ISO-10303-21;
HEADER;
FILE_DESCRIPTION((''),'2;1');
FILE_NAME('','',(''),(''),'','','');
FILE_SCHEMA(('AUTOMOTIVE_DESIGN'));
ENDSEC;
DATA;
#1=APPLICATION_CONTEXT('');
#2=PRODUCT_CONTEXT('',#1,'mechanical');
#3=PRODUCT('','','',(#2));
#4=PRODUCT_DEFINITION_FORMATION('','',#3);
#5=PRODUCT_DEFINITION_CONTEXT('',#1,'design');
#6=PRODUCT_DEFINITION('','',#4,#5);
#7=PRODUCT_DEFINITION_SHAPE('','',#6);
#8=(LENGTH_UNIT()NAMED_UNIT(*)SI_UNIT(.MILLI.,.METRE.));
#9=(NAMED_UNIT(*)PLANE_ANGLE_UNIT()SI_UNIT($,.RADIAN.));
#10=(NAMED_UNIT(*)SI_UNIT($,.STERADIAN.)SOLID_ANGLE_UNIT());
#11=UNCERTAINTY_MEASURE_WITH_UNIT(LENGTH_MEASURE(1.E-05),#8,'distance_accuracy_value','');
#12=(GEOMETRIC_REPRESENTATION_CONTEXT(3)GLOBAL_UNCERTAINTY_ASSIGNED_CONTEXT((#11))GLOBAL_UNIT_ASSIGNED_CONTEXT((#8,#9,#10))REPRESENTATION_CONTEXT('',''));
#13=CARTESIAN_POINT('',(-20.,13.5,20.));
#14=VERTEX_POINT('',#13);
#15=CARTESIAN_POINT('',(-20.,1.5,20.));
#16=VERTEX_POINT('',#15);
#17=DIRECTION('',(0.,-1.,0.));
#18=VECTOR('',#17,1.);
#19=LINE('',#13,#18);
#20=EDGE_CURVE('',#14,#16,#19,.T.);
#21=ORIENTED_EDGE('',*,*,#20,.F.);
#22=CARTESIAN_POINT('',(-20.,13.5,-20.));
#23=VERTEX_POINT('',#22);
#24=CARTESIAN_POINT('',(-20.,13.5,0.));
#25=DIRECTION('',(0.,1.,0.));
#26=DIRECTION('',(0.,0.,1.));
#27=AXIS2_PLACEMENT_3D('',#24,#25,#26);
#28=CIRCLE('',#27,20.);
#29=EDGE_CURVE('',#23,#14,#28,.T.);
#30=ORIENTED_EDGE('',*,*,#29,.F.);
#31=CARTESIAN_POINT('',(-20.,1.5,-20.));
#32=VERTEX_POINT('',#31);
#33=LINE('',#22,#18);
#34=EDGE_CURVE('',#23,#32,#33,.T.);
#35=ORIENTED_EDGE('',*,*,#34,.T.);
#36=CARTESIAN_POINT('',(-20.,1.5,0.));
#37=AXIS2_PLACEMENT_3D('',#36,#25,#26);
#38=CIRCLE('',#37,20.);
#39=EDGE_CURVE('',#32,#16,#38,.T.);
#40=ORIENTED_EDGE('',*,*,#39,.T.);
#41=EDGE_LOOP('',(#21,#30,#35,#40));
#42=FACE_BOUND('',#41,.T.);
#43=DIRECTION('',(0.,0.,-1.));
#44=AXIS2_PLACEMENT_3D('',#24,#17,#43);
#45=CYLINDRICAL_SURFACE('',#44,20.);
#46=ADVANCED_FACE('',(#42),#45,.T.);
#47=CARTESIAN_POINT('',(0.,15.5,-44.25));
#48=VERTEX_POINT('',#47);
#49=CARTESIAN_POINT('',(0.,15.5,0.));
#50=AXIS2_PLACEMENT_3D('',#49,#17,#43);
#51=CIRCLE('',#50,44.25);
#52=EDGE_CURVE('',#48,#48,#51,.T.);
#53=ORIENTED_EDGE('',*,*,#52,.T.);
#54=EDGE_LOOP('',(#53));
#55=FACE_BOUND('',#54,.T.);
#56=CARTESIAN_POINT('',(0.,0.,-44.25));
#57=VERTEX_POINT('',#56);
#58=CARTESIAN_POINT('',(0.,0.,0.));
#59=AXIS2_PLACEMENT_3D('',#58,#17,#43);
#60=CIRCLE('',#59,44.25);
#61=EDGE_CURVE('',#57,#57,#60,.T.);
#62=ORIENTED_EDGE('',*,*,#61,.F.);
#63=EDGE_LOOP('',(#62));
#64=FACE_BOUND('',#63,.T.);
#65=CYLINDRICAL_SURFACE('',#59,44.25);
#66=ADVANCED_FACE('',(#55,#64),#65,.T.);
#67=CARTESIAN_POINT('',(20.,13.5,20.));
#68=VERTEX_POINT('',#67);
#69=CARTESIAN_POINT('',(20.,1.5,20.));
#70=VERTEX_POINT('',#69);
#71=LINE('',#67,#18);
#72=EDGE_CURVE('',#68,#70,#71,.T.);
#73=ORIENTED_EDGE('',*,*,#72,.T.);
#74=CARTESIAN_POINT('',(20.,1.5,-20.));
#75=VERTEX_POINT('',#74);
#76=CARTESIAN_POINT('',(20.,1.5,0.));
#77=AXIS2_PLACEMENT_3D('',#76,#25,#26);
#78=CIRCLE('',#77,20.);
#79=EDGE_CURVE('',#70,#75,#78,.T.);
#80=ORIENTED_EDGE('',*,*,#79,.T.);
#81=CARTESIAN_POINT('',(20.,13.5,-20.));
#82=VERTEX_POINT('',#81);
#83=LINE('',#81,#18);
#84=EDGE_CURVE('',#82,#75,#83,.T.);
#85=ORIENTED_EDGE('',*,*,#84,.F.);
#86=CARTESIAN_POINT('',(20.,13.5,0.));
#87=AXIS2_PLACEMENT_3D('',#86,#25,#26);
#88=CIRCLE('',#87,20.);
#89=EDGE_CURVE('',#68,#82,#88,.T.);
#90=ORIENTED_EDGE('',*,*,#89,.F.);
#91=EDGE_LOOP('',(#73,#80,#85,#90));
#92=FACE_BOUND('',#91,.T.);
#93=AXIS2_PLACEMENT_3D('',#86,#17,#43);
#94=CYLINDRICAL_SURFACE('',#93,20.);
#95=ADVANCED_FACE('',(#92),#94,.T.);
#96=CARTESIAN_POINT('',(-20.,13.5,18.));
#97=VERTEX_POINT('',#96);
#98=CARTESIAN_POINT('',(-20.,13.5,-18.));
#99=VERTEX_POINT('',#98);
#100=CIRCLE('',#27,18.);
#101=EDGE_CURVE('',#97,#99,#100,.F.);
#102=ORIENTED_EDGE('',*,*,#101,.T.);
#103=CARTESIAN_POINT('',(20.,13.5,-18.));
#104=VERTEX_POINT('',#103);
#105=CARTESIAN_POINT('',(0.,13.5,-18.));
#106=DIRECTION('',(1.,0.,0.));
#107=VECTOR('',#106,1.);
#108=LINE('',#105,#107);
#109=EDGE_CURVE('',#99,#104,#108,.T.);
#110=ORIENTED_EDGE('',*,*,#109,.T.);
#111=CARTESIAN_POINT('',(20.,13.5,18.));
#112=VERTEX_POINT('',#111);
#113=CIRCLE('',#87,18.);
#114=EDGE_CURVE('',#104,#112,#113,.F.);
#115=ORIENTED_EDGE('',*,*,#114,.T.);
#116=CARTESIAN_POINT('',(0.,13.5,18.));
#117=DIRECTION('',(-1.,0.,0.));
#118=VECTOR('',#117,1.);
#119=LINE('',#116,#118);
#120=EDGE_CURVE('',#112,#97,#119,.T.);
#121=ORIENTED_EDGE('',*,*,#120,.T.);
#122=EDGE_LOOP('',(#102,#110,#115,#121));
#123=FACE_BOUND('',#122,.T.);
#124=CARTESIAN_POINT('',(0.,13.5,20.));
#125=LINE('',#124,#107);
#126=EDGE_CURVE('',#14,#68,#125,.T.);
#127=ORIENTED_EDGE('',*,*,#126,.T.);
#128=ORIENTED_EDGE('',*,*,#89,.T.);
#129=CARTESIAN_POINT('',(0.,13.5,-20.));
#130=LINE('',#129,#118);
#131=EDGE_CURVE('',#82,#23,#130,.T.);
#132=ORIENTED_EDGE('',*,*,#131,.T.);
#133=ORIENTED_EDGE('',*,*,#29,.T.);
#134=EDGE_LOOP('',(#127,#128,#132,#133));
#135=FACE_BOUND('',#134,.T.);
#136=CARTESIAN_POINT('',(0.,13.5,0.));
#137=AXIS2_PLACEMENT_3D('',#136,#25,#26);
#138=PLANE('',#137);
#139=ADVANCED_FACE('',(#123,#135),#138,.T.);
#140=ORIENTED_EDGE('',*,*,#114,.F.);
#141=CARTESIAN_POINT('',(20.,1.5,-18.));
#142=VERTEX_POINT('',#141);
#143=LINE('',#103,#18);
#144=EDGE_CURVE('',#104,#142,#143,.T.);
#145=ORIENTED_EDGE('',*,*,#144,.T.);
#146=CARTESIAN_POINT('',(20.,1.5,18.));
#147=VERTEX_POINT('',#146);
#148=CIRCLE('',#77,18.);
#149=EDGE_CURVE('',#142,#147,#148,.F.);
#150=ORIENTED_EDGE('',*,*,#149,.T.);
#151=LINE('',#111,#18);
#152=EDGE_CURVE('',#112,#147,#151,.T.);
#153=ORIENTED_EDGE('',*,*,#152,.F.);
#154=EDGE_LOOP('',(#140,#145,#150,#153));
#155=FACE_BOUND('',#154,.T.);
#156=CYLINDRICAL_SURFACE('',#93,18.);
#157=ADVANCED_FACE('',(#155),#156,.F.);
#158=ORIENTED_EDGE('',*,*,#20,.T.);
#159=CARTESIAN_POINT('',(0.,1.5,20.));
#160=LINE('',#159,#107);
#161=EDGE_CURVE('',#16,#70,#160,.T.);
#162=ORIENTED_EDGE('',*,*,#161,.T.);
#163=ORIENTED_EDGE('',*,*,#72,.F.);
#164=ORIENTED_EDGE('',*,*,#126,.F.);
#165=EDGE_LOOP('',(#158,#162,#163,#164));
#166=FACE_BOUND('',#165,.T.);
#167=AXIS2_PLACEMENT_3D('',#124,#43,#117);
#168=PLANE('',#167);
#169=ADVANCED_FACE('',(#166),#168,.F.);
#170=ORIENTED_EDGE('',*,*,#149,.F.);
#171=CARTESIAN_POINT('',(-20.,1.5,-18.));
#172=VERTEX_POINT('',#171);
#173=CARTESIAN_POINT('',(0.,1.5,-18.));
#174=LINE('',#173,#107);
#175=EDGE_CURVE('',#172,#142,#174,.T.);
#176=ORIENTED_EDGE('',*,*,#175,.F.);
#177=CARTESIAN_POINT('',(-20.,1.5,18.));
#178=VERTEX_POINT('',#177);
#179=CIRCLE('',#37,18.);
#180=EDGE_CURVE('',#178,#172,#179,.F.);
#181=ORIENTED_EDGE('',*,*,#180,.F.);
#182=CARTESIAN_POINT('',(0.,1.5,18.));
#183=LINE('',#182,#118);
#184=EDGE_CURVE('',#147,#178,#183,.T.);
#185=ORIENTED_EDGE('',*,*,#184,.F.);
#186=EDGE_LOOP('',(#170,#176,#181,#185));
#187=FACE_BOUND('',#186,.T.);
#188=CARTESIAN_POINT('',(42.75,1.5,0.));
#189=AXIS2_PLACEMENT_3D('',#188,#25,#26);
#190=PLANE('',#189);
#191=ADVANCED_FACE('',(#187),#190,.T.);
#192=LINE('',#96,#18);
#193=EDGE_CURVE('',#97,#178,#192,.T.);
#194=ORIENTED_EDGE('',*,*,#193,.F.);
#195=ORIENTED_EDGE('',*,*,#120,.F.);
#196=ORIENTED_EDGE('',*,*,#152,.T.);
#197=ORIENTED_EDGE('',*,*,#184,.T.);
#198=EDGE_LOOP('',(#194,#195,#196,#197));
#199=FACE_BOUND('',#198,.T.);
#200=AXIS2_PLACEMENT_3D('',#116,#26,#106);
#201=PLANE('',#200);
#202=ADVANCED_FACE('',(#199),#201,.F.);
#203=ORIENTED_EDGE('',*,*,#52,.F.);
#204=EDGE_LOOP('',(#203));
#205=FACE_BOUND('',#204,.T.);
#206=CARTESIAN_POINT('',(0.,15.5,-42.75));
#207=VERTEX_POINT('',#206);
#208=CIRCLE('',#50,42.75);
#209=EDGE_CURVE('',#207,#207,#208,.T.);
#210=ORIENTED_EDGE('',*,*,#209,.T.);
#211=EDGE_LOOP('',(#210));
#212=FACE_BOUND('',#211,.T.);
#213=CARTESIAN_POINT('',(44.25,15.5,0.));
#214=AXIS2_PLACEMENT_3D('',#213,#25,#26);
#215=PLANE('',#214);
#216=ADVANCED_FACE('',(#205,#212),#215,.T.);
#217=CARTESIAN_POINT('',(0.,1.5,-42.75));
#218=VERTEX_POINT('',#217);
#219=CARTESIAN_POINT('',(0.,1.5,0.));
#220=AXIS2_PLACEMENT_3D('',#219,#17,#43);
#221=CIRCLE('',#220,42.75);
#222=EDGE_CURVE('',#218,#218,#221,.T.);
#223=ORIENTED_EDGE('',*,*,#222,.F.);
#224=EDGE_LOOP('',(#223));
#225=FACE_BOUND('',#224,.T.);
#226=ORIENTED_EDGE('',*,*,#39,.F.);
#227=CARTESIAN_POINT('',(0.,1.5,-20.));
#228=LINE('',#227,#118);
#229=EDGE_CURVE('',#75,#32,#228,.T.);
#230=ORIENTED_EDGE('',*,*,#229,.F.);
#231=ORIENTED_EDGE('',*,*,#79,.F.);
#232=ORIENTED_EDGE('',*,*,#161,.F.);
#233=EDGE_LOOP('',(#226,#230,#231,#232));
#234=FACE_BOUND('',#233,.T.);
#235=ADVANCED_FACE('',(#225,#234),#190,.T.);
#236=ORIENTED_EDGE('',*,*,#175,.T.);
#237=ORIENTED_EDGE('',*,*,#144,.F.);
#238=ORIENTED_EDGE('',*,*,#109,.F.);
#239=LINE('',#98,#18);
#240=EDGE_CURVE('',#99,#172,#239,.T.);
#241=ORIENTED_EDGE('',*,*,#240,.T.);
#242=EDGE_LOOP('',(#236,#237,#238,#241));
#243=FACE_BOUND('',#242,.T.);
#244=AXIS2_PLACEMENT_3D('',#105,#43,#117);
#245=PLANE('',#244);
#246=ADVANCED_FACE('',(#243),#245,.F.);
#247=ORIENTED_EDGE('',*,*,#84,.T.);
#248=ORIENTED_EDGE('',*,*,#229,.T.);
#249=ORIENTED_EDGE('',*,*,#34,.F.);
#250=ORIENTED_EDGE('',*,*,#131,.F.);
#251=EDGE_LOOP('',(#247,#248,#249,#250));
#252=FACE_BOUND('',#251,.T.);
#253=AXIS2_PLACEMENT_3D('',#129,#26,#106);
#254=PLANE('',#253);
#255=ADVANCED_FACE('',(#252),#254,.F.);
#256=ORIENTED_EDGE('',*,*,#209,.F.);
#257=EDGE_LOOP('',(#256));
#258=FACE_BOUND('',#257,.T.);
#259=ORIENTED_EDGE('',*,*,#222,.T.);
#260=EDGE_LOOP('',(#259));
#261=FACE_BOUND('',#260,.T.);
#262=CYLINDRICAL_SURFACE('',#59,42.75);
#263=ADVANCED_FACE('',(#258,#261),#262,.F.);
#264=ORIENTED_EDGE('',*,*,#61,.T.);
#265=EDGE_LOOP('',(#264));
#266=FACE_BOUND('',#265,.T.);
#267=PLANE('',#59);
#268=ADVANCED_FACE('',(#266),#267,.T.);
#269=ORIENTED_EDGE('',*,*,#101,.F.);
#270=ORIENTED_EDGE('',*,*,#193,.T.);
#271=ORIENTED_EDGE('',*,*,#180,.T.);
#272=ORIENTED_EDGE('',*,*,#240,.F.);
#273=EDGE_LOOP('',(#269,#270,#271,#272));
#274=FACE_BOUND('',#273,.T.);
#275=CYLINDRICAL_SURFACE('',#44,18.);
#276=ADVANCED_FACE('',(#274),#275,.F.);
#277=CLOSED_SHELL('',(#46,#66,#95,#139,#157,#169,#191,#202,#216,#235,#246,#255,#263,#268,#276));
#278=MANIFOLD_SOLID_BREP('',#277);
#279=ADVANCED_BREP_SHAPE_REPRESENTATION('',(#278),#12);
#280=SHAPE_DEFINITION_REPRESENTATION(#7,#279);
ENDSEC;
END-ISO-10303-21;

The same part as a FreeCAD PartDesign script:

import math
import FreeCAD as App
import Part
import Sketcher
from FreeCAD import Vector
Q = App.Units.Quantity

doc = App.newDocument("Part")
body = doc.addObject("PartDesign::Body", "Body")

sketch1 = body.newObject("Sketcher::SketchObject", "Sketch")
sketch1.AttachmentSupport = (doc.getObject("XY_Plane"), [""])
sketch1.MapMode = "FlatFace"
sketch1.addGeometry(Part.LineSegment(Vector(0, 0, 0), Vector(44.25, 0, 0)), False)
sketch1.addGeometry(Part.LineSegment(Vector(44.25, 0, 0), Vector(44.25, 15.5, 0)), False)
sketch1.addGeometry(Part.LineSegment(Vector(44.25, 15.5, 0), Vector(42.75, 15.5, 0)), False)
sketch1.addGeometry(Part.LineSegment(Vector(42.75, 15.5, 0), Vector(42.75, 1.5, 0)), False)
sketch1.addGeometry(Part.LineSegment(Vector(42.75, 1.5, 0), Vector(0, 1.5, 0)), False)
sketch1.addGeometry(Part.LineSegment(Vector(0, 1.5, 0), Vector(0, 0, 0)), False)
sketch1.addConstraint(Sketcher.Constraint("Coincident", 0, 2, 1, 1))
sketch1.addConstraint(Sketcher.Constraint("Coincident", 1, 2, 2, 1))
sketch1.addConstraint(Sketcher.Constraint("Coincident", 2, 2, 3, 1))
sketch1.addConstraint(Sketcher.Constraint("Coincident", 3, 2, 4, 1))
sketch1.addConstraint(Sketcher.Constraint("Coincident", 4, 2, 5, 1))
sketch1.addConstraint(Sketcher.Constraint("Coincident", 5, 2, 0, 1))
sketch1.addConstraint(Sketcher.Constraint("Horizontal", 0))
sketch1.addConstraint(Sketcher.Constraint("Vertical", 1))
sketch1.addConstraint(Sketcher.Constraint("Horizontal", 2))
sketch1.addConstraint(Sketcher.Constraint("Vertical", 3))
sketch1.addConstraint(Sketcher.Constraint("Horizontal", 4))
sketch1.addConstraint(Sketcher.Constraint("Vertical", 5))
sketch1.addConstraint(Sketcher.Constraint("Coincident", 5, 2, -1, 1))
sketch1.addConstraint(Sketcher.Constraint("Equal", 2, 5))
sketch1.addConstraint(Sketcher.Constraint("DistanceY", 3, 2, 3, 1, Q("14 mm")))
sketch1.addConstraint(Sketcher.Constraint("DistanceX", 2, 2, 2, 1, Q("1.5 mm")))
sketch1.addConstraint(Sketcher.Constraint("DistanceX", 0, 1, 0, 2, Q("44.25 mm")))
revolution = body.newObject("PartDesign::Revolution", "Revolution")
revolution.Profile = sketch1
revolution.ReferenceAxis = (sketch1, ["V_Axis"])
revolution.Angle = 360

sketch2 = body.newObject("Sketcher::SketchObject", "Sketch001")
sketch2.AttachmentSupport = (doc.getObject("XZ_Plane"), [""])
sketch2.MapMode = "FlatFace"
sketch2.AttachmentOffset = App.Placement(Vector(0, 0, -1.5), App.Rotation())
sketch2.addGeometry(Part.LineSegment(Vector(20, -20, 0), Vector(-20, -20, 0)), False)
sketch2.addGeometry(Part.ArcOfCircle(Part.Circle(Vector(-20, 0, 0), Vector(0, 0, 1), 20), math.radians(90), math.radians(270)), False)
sketch2.addGeometry(Part.LineSegment(Vector(-20, 20, 0), Vector(20, 20, 0)), False)
sketch2.addGeometry(Part.ArcOfCircle(Part.Circle(Vector(20, 0, 0), Vector(0, 0, 1), 20), math.radians(-90), math.radians(90)), False)
sketch2.addGeometry(Part.ArcOfCircle(Part.Circle(Vector(20, 0, 0), Vector(0, 0, 1), 18), math.radians(-90), math.radians(90)), False)
sketch2.addGeometry(Part.LineSegment(Vector(20, 18, 0), Vector(-20, 18, 0)), False)
sketch2.addGeometry(Part.ArcOfCircle(Part.Circle(Vector(-20, 0, 0), Vector(0, 0, 1), 18), math.radians(90), math.radians(270)), False)
sketch2.addGeometry(Part.LineSegment(Vector(-20, -18, 0), Vector(20, -18, 0)), False)
sketch2.addConstraint(Sketcher.Constraint("Tangent", 0, 2, 1, 2))
sketch2.addConstraint(Sketcher.Constraint("Tangent", 1, 1, 2, 1))
sketch2.addConstraint(Sketcher.Constraint("Tangent", 2, 2, 3, 2))
sketch2.addConstraint(Sketcher.Constraint("Tangent", 3, 1, 0, 1))
sketch2.addConstraint(Sketcher.Constraint("Tangent", 4, 2, 5, 1))
sketch2.addConstraint(Sketcher.Constraint("Tangent", 5, 2, 6, 1))
sketch2.addConstraint(Sketcher.Constraint("Tangent", 6, 2, 7, 1))
sketch2.addConstraint(Sketcher.Constraint("Tangent", 7, 2, 4, 1))
sketch2.addConstraint(Sketcher.Constraint("Horizontal", 0))
sketch2.addConstraint(Sketcher.Constraint("Horizontal", 2))
sketch2.addConstraint(Sketcher.Constraint("Horizontal", 5))
sketch2.addConstraint(Sketcher.Constraint("Horizontal", 7))
sketch2.addConstraint(Sketcher.Constraint("Coincident", 4, 3, 3, 3))
sketch2.addConstraint(Sketcher.Constraint("Symmetric", 1, 3, 3, 3, -1, 1))
sketch2.addConstraint(Sketcher.Constraint("Vertical", 6, 3, 0, 2))
sketch2.addConstraint(Sketcher.Constraint("Radius", 1, Q("20 mm")))
sketch2.addConstraint(Sketcher.Constraint("Radius", 4, Q("18 mm")))
sketch2.addConstraint(Sketcher.Constraint("DistanceX", 0, 2, 0, 1, Q("40 mm")))
pad1 = body.newObject("PartDesign::Pad", "Pad")
pad1.Profile = sketch2
pad1.Length = 12
pad1.Reversed = True

doc.recompute()
